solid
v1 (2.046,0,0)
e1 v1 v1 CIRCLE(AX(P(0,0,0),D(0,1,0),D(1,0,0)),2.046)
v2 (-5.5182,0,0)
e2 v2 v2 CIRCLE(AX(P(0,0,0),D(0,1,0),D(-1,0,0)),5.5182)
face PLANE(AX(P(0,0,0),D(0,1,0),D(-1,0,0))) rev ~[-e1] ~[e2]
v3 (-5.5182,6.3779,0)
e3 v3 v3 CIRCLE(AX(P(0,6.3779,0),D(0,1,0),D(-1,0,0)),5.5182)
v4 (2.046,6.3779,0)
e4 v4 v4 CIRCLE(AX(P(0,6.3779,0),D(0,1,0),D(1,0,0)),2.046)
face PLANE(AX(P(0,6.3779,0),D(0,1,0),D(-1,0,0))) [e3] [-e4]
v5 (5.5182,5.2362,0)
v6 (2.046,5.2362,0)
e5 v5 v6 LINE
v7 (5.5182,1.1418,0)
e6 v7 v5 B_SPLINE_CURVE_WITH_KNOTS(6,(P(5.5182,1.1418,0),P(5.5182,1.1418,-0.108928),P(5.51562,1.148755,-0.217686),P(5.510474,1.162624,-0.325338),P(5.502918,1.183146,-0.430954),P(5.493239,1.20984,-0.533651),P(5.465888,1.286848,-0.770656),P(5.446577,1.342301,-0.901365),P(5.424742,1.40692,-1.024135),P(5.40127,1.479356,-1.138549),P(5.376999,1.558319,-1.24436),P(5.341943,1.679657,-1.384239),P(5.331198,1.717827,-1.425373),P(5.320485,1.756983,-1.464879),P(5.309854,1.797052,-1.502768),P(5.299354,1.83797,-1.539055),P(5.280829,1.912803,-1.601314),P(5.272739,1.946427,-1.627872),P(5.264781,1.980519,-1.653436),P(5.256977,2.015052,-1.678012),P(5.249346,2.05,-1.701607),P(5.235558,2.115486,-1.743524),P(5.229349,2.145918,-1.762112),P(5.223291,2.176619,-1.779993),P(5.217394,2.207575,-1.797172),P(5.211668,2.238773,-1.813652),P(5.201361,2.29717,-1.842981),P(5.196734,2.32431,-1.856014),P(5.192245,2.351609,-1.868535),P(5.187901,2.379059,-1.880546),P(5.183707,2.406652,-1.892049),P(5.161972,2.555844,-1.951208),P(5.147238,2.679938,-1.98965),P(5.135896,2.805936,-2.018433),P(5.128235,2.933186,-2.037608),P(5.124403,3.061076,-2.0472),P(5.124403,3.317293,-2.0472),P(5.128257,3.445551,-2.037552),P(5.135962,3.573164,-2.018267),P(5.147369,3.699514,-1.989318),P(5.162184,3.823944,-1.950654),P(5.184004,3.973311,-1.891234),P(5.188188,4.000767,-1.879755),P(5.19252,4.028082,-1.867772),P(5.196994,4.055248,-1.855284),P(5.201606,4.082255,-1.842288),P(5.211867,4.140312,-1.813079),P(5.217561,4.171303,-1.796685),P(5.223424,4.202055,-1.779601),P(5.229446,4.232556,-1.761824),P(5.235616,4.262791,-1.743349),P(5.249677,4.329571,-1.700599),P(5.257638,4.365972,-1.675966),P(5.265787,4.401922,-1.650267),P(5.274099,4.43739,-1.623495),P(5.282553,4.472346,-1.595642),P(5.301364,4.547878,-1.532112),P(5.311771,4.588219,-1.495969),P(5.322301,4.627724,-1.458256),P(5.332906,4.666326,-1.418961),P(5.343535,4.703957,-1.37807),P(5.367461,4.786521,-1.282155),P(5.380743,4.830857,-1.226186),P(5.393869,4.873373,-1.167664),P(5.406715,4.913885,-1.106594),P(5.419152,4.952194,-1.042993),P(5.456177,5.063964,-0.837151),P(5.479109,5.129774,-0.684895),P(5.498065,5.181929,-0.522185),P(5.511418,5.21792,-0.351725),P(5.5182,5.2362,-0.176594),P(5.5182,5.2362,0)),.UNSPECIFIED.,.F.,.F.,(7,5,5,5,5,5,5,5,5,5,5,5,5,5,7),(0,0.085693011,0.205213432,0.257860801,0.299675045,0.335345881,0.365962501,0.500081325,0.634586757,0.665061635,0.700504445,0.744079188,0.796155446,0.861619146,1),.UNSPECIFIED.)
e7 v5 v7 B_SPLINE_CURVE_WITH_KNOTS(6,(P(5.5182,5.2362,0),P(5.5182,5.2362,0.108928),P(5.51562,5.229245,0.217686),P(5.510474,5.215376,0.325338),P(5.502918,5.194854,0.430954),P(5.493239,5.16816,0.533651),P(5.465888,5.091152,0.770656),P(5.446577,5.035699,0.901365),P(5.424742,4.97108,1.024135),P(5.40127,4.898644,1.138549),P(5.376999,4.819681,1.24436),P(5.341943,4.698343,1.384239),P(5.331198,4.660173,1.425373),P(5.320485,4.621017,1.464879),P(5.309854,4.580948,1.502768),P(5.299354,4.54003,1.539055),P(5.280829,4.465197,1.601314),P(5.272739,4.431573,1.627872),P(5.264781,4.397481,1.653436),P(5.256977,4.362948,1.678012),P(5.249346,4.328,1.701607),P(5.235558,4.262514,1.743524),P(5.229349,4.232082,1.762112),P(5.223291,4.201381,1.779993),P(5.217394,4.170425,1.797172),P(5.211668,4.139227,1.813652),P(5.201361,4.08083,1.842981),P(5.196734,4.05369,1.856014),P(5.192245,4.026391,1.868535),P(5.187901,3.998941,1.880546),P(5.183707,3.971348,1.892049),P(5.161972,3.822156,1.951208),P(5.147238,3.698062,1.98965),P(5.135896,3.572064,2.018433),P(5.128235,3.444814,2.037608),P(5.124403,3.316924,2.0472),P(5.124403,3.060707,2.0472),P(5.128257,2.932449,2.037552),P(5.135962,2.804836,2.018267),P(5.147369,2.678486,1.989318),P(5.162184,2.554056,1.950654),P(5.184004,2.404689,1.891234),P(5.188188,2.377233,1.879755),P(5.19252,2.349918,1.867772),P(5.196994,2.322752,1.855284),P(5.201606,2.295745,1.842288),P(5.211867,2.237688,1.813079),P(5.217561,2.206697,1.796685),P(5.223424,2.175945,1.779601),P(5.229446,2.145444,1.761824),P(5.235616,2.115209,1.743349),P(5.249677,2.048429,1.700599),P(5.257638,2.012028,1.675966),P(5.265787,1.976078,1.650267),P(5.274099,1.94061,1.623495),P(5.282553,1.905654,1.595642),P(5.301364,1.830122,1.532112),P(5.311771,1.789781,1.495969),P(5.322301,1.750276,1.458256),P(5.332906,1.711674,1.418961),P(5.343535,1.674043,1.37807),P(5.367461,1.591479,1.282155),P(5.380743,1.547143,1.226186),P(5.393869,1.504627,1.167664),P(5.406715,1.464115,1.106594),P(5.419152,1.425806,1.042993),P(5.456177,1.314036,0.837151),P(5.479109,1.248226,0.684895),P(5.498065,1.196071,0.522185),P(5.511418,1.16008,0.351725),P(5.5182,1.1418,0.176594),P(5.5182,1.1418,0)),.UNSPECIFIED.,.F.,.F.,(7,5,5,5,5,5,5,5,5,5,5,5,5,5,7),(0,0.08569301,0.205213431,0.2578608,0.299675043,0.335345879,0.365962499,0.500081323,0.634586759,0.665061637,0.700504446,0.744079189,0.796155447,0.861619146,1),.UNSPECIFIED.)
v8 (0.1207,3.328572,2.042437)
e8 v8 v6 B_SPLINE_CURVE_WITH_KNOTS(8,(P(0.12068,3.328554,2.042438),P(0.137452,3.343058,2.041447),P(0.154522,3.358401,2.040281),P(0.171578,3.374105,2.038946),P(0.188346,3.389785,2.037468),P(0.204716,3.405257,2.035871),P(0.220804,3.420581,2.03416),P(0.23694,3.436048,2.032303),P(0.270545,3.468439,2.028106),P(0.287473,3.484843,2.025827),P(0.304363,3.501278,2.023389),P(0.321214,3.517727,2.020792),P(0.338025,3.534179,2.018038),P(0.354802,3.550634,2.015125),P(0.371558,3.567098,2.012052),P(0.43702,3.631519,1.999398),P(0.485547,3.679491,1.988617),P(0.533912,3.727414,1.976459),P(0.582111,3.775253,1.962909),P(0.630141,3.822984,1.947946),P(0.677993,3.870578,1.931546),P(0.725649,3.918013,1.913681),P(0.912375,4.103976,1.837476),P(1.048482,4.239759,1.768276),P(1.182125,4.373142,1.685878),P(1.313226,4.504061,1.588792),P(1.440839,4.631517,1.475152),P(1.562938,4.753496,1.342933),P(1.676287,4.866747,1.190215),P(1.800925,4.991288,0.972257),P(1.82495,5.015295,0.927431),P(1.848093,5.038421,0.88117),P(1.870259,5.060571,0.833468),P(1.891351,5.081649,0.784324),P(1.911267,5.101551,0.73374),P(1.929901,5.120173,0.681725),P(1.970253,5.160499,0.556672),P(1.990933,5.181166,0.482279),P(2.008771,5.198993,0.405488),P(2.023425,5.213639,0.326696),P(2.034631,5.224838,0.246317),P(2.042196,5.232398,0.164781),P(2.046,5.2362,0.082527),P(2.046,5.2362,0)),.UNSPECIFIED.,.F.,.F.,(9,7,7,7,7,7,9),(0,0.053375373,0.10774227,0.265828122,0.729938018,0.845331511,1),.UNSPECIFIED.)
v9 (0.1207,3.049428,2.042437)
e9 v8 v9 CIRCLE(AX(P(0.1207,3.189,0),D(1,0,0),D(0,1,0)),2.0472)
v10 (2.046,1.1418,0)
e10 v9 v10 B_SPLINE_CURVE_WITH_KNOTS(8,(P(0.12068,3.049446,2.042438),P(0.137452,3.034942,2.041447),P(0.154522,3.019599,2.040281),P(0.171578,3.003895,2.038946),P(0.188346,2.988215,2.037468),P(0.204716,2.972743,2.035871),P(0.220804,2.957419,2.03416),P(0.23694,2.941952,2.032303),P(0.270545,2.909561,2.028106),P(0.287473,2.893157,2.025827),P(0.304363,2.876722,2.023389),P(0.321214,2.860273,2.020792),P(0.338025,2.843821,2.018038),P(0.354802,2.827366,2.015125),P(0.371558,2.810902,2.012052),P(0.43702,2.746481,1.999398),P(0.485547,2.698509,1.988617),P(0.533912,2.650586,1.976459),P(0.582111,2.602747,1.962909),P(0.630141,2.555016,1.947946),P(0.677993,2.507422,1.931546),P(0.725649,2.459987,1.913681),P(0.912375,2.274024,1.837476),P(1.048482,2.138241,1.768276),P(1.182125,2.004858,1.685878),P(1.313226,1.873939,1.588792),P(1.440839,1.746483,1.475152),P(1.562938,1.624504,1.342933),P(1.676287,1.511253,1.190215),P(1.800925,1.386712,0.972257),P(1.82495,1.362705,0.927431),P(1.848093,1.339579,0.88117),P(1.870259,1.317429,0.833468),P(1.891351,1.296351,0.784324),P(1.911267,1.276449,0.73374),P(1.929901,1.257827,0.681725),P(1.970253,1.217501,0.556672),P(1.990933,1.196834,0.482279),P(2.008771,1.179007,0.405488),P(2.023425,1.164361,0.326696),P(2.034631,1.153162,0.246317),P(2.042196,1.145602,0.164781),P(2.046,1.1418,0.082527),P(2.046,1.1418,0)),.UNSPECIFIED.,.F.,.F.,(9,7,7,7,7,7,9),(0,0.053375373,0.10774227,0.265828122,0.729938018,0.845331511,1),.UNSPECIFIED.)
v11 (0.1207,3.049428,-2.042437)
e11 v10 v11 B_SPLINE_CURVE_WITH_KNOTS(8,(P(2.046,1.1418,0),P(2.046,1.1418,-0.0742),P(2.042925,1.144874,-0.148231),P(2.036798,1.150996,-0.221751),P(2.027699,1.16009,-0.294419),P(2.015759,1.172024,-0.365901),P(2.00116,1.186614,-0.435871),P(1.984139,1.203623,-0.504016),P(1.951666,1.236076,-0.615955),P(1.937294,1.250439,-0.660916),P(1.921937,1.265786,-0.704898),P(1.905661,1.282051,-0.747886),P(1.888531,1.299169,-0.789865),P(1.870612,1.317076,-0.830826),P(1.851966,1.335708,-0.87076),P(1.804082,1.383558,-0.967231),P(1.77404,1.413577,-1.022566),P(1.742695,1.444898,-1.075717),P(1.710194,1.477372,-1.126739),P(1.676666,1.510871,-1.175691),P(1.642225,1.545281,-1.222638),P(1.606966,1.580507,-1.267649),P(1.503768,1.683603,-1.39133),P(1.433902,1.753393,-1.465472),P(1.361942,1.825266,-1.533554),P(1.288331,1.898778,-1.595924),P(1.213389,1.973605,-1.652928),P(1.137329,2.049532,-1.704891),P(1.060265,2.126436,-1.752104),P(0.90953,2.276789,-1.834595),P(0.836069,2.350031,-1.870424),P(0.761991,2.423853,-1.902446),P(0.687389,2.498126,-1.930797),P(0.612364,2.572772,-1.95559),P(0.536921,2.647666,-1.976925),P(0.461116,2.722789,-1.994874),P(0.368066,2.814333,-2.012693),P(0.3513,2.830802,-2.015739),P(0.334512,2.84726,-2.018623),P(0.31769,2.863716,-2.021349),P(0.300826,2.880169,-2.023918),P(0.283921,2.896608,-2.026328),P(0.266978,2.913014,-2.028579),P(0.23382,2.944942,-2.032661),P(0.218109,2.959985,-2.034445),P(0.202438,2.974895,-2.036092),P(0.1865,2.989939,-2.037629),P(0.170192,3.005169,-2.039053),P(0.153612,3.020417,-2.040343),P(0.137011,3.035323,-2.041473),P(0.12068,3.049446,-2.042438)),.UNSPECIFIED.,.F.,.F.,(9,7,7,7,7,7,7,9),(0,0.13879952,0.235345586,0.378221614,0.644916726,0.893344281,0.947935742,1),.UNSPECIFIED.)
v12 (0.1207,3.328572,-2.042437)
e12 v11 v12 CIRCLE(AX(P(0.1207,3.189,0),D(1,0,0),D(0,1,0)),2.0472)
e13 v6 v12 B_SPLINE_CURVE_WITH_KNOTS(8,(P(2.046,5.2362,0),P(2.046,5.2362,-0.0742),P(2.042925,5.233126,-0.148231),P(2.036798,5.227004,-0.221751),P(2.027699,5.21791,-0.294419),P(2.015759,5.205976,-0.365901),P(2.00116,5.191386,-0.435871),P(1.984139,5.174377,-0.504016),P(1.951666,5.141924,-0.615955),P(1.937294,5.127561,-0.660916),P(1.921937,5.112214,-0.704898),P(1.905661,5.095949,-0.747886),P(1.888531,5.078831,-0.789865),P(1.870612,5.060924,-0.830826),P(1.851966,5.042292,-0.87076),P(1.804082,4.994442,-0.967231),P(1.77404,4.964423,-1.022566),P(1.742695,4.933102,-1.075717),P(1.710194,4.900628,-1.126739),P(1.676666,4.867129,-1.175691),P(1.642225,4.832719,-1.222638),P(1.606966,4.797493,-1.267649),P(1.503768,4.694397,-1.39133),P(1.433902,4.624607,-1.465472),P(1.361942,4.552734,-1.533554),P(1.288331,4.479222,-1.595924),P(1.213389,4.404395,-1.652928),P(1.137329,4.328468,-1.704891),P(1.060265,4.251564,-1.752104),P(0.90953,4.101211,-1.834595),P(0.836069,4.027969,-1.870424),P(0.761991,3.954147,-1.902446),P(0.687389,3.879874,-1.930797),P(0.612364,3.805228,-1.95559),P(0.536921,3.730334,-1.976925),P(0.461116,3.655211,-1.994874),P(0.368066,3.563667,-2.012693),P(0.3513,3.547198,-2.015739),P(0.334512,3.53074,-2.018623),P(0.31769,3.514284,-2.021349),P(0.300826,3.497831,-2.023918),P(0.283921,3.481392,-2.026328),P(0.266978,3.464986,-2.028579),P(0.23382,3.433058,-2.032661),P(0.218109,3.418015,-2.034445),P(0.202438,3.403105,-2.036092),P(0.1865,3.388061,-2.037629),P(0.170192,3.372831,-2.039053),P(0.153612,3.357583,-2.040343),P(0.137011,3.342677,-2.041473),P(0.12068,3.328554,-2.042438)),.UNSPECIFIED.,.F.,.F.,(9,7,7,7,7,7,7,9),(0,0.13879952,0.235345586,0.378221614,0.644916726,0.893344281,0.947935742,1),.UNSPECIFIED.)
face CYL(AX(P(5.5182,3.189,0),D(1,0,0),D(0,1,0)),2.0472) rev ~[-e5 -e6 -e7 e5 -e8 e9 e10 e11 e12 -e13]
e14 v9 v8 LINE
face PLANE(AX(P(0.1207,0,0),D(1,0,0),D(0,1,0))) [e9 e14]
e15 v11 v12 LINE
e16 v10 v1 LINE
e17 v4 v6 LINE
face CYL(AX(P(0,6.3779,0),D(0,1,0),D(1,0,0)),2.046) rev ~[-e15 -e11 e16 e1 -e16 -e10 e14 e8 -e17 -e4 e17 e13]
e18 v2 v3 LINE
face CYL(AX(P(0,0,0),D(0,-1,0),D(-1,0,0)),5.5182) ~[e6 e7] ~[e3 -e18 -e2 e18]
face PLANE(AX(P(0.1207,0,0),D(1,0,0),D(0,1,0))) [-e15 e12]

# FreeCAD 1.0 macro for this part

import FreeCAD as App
import Part
import Sketcher
from FreeCAD import Vector
Q = App.Units.Quantity

doc = App.newDocument("Part")
body = doc.addObject("PartDesign::Body", "Body")

# Sketch on XZ plane
sketch1 = doc.addObject("Sketcher::SketchObject", "Sketch")
body.addObject(sketch1)
sketch1.AttachmentSupport = (doc.XZ_Plane, [""])
sketch1.MapMode = "FlatFace"
sketch1.addGeometry(Part.Circle(Vector(0, 0, 0), Vector(0, 0, 1), 6), False)
sketch1.addConstraint(Sketcher.Constraint("Coincident", 0, 3, -1, 1))
sketch1.addConstraint(Sketcher.Constraint("Diameter", 0, Q("0.4345 in")))
pad1 = doc.addObject("PartDesign::Pad", "Pad")
body.addObject(pad1)
pad1.Profile = sketch1
pad1.Length = Q("0.2510984 in")
pad1.Reversed = True

# Sketch on XZ plane
sketch2 = doc.addObject("Sketcher::SketchObject", "Sketch001")
body.addObject(sketch2)
sketch2.AttachmentSupport = (doc.XZ_Plane, [""])
sketch2.MapMode = "FlatFace"
sketch2.AttachmentOffset = App.Placement(Vector(0, 0, -0.2510984 * 25.4), App.Rotation())
sketch2.addGeometry(Part.Circle(Vector(0, 0, 0), Vector(0, 0, 1), 2), False)
sketch2.addConstraint(Sketcher.Constraint("Coincident", 0, 3, -1, 1))
sketch2.addConstraint(Sketcher.Constraint("Diameter", 0, Q("0.1611 in")))
pocket1 = doc.addObject("PartDesign::Pocket", "Pocket")
body.addObject(pocket1)
pocket1.Profile = sketch2
pocket1.Length = Q("0.4375 in")
pocket1.Reversed = True

# Sketch on YZ plane
sketch3 = doc.addObject("Sketcher::SketchObject", "Sketch002")
body.addObject(sketch3)
sketch3.AttachmentSupport = (doc.YZ_Plane, [""])
sketch3.MapMode = "FlatFace"
sketch3.AttachmentOffset = App.Placement(Vector(0, 0, 5.5182), App.Rotation())
sketch3.addGeometry(Part.Circle(Vector(3.2, 0, 0), Vector(0, 0, 1), 2), False)
sketch3.addConstraint(Sketcher.Constraint("PointOnObject", 0, 3, -1))
sketch3.addConstraint(Sketcher.Constraint("Diameter", 0, Q("0.1612 in")))
sketch3.addConstraint(Sketcher.Constraint("DistanceX", -1, 1, 0, 3, Q("3.189 mm")))
pocket2 = doc.addObject("PartDesign::Pocket", "Pocket001")
body.addObject(pocket2)
pocket2.Profile = sketch3
pocket2.Length = Q("0.2125 in")

doc.recompute()
